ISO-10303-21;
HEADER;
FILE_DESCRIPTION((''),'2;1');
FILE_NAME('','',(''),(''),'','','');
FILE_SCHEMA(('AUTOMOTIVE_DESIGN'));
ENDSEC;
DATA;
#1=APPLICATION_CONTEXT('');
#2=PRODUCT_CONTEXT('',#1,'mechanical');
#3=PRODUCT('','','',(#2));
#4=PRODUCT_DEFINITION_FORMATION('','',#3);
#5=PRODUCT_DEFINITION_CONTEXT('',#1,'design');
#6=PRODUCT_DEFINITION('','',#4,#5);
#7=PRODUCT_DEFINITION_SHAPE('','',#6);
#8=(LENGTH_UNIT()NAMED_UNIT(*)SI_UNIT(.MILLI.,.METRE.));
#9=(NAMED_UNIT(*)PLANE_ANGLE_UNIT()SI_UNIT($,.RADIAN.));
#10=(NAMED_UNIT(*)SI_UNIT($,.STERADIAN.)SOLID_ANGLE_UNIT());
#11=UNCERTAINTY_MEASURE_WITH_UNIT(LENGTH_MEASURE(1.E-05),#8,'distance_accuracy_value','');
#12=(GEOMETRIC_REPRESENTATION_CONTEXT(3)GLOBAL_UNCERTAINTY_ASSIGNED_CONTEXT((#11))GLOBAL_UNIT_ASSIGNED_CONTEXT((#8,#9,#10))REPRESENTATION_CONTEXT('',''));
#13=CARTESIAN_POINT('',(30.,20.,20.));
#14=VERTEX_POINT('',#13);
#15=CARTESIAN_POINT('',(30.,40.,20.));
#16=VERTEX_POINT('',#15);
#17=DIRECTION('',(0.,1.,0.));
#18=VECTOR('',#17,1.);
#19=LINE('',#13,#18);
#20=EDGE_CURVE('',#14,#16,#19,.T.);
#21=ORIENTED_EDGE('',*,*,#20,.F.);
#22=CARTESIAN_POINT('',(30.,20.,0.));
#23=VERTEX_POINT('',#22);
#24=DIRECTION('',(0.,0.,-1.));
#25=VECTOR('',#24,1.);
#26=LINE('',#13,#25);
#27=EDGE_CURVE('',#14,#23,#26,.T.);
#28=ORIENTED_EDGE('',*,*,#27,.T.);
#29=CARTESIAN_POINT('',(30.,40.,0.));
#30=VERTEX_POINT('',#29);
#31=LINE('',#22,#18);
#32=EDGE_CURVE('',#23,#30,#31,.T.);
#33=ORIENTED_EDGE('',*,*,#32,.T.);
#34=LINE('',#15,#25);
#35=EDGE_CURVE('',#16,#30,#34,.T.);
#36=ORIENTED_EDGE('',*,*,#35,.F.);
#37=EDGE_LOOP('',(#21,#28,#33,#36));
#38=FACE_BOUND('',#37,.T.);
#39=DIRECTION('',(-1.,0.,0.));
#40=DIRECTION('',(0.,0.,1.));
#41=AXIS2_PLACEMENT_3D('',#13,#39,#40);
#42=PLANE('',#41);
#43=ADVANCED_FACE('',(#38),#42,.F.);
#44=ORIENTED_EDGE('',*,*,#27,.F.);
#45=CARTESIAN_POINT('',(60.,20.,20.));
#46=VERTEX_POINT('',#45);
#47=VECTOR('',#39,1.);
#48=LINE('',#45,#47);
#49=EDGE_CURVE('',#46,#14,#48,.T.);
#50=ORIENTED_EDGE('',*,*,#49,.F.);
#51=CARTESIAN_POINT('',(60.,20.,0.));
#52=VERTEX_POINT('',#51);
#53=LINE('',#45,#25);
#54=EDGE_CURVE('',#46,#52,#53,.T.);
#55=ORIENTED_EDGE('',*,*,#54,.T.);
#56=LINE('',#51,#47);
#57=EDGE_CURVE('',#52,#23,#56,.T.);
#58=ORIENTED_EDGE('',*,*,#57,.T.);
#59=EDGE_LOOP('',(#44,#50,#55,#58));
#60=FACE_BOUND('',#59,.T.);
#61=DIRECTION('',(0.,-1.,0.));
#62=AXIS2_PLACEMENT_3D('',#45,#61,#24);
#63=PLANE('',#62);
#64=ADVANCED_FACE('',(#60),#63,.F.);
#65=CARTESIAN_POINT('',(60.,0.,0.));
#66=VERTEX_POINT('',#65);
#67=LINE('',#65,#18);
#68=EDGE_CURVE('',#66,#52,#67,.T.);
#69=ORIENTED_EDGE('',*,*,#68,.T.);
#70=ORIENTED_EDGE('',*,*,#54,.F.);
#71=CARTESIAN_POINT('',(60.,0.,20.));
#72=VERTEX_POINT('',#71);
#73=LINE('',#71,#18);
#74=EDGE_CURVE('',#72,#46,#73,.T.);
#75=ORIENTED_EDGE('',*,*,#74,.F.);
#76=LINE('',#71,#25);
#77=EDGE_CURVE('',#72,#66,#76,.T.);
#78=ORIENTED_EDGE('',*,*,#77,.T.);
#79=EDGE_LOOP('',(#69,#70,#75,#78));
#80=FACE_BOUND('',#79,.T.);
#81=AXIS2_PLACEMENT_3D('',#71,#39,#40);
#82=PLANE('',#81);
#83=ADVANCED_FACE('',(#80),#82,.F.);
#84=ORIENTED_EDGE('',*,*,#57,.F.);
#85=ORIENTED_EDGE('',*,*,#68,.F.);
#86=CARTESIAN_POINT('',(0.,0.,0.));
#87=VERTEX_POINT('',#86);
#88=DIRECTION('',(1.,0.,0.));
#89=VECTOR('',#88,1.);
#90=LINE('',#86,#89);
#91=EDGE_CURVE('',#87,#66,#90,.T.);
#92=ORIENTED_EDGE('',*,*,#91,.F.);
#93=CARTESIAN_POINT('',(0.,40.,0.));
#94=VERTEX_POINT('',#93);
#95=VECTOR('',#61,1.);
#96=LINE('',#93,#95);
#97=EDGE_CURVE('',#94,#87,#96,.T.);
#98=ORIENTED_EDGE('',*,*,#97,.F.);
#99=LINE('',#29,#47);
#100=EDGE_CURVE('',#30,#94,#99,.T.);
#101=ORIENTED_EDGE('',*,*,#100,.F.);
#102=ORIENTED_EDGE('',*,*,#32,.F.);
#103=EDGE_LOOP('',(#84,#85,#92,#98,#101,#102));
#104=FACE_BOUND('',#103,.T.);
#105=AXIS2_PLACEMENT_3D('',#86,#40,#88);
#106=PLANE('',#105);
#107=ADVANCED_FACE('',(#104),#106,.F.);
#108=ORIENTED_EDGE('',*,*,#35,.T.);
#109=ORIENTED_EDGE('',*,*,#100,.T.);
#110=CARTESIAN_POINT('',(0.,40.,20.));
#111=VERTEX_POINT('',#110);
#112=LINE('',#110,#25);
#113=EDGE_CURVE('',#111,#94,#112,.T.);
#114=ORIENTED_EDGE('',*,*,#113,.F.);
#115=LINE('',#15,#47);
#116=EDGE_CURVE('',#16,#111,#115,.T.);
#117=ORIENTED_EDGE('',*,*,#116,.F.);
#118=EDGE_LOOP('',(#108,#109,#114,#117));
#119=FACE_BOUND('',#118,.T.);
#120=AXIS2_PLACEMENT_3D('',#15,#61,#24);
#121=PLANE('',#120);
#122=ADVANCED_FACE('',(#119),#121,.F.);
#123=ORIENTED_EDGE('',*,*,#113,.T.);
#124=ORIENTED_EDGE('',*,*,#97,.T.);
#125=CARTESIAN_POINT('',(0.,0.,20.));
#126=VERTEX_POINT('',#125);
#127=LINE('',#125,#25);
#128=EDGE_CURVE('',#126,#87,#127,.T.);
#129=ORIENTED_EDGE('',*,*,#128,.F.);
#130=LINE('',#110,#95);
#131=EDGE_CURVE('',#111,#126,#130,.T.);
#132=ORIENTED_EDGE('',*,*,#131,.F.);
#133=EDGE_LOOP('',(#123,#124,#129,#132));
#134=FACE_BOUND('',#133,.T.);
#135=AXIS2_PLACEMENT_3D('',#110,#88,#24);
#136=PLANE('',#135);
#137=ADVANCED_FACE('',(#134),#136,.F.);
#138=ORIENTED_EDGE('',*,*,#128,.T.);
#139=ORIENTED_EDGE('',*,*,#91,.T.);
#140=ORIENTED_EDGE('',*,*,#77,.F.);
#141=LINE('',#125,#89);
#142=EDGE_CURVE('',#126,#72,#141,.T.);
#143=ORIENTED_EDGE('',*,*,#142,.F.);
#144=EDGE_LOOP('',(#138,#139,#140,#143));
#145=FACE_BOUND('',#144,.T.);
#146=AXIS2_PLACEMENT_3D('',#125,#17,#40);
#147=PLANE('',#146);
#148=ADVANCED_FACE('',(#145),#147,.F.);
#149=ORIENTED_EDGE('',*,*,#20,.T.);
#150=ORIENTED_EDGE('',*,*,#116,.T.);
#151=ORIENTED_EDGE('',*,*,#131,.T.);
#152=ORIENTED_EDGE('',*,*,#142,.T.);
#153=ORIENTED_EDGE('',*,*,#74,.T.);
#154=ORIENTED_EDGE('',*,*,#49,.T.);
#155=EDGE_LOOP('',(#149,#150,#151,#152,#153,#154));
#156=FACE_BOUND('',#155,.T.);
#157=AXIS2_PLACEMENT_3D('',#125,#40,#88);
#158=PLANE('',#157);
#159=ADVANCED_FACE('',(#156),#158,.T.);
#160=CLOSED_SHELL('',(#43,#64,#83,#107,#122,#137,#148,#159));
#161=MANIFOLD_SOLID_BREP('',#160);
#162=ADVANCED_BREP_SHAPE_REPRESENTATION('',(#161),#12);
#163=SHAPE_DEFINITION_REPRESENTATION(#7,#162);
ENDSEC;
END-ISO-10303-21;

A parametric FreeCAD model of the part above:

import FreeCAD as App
import Part
import Sketcher

V = App.Vector


def add_polygon(sketch, points):
    """Adds a closed chain of lines whose ends are joined by coincident constraints."""
    first, n = sketch.GeometryCount, len(points)
    for a, b in zip(points, points[1:] + points[:1]):
        sketch.addGeometry(Part.LineSegment(App.Vector(*a, 0), App.Vector(*b, 0)), False)
    for i in range(n):
        sketch.addConstraint(Sketcher.Constraint("Coincident", first + i, 2, first + (i + 1) % n, 1))

doc = App.newDocument("Part")
body = doc.addObject("PartDesign::Body", "Body")

sketch1 = body.newObject("Sketcher::SketchObject", "Sketch")
sketch1.AttachmentSupport = (doc.getObject("XY_Plane"), [""])
sketch1.MapMode = "FlatFace"
add_polygon(sketch1, [(0, 0), (60, 0), (60, 20), (30, 20), (30, 40), (0, 40)])
sketch1.addConstraint([
    Sketcher.Constraint("Horizontal", 0),
    Sketcher.Constraint("Vertical", 1),
    Sketcher.Constraint("Horizontal", 2),
    Sketcher.Constraint("Vertical", 3),
    Sketcher.Constraint("Horizontal", 4),
    Sketcher.Constraint("Vertical", 5),
    Sketcher.Constraint("Coincident", 5, 2, -1, 1),
    Sketcher.Constraint("Equal", 2, 4),
    Sketcher.Constraint("Equal", 1, 3),
    Sketcher.Constraint("DistanceX", 0, 1, 0, 2, 60.0),
    Sketcher.Constraint("DistanceY", 1, 1, 1, 2, 20.0),
])
pad1 = body.newObject("PartDesign::Pad", "Pad")
pad1.Profile = sketch1
pad1.Length = 20

doc.recompute()
